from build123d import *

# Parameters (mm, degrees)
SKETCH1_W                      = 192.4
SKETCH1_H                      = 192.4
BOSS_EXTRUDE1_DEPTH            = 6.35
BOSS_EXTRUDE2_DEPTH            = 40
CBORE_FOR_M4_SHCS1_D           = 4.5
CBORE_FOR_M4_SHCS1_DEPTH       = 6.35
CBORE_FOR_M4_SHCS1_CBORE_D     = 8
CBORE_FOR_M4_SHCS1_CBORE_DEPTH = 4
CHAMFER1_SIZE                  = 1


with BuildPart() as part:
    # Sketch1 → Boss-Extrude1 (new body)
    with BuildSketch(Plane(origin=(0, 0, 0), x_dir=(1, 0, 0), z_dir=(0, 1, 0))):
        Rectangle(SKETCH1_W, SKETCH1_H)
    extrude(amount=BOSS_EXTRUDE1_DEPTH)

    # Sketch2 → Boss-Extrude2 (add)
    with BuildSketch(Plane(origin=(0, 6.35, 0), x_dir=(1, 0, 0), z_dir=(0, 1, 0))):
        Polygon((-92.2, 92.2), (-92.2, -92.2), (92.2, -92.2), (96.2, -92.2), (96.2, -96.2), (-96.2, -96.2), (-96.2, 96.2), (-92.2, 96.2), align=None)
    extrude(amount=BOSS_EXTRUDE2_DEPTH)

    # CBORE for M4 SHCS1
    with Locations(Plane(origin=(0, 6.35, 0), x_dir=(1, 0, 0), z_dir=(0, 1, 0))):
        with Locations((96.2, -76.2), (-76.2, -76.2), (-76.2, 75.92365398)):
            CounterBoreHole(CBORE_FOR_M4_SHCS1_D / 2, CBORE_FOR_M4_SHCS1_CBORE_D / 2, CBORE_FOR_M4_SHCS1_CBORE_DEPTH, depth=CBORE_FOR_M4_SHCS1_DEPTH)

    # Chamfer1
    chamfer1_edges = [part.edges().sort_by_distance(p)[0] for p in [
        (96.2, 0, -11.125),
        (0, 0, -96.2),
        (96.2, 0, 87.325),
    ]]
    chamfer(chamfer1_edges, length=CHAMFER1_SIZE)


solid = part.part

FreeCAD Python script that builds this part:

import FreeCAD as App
import Part
import Sketcher
from FreeCAD import Vector
Q = App.Units.Quantity


def edges_at(feature, points):
    """Names of the edges that pass closest to the given points."""
    edges = feature.Shape.Edges
    near = lambda p: min(range(len(edges)), key=lambda i: edges[i].distToShape(Part.Vertex(*p))[0])
    return sorted({f"Edge{near(p) + 1}" for p in points})

doc = App.newDocument("Part")
params = doc.addObject("Spreadsheet::Sheet", "Params")
for row, (alias, value) in enumerate([
    ("sketch1_width", "192.4 mm"),
    ("pad1_length", "6.35 mm"),
    ("sketch2_width", "4 mm"),
    ("sketch2_width2", "192.4 mm"),
    ("pad2_length", "40 mm"),
    ("sketch3_diameter", "4.5 mm"),
    ("hole_diameter", "4.5 mm"),
    ("hole_depth", "6.35 mm"),
    ("hole_cbore_diameter", "8 mm"),
    ("hole_cbore_depth", "4 mm"),
    ("chamfer_size", "1 mm"),
], start=1):
    params.set(f"A{row}", alias)
    params.set(f"B{row}", "=" + value)
    params.setAlias(f"B{row}", alias)

body = doc.addObject("PartDesign::Body", "Body")

sketch1 = body.newObject("Sketcher::SketchObject", "Sketch")
sketch1.AttachmentSupport = (doc.getObject("XZ_Plane"), [""])
sketch1.MapMode = "FlatFace"
sketch1.addGeometry([
    Part.LineSegment(Vector(-96, -96, 0), Vector(-96, 96, 0)),
    Part.LineSegment(Vector(-96, 96, 0), Vector(96, 96, 0)),
    Part.LineSegment(Vector(96, 96, 0), Vector(96, -96, 0)),
    Part.LineSegment(Vector(96, -96, 0), Vector(-96, -96, 0)),
], False)
sketch1.addConstraint([
    Sketcher.Constraint("Coincident", 0, 2, 1, 1),
    Sketcher.Constraint("Coincident", 1, 2, 2, 1),
    Sketcher.Constraint("Coincident", 2, 2, 3, 1),
    Sketcher.Constraint("Coincident", 3, 2, 0, 1),
    Sketcher.Constraint("Vertical", 0),
    Sketcher.Constraint("Horizontal", 1),
    Sketcher.Constraint("Vertical", 2),
    Sketcher.Constraint("Horizontal", 3),
    Sketcher.Constraint("Symmetric", 0, 2, 2, 2, -1, 1),
    Sketcher.Constraint("Equal", 3, 0),
    Sketcher.Constraint("DistanceX", 1, 1, 1, 2, Q("192.4 mm")),
])
sketch1.setExpression("Constraints[10]", "Params.sketch1_width")
pad1 = body.newObject("PartDesign::Pad", "Pad")
pad1.Profile = sketch1
pad1.setExpression("Length", "Params.pad1_length")
pad1.Reversed = True

sketch2 = body.newObject("Sketcher::SketchObject", "Sketch001")
sketch2.AttachmentSupport = (doc.getObject("XZ_Plane"), [""])
sketch2.MapMode = "FlatFace"
sketch2.AttachmentOffset = App.Placement(Vector(0, 0, -6.35), App.Rotation())
sketch2.addGeometry([
    Part.LineSegment(Vector(-92.2, 92.2, 0), Vector(-92.2, -96.2, 0)),
    Part.LineSegment(Vector(-92.2, -96.2, 0), Vector(-96.2, -96.2, 0)),
    Part.LineSegment(Vector(-96.2, -96.2, 0), Vector(-96.2, 96.2, 0)),
    Part.LineSegment(Vector(-96.2, 96.2, 0), Vector(96.2, 96.2, 0)),
    Part.LineSegment(Vector(96.2, 96.2, 0), Vector(96.2, 92.2, 0)),
    Part.LineSegment(Vector(96.2, 92.2, 0), Vector(-92.2, 92.2, 0)),
], False)
sketch2.addConstraint([
    Sketcher.Constraint("Coincident", 0, 2, 1, 1),
    Sketcher.Constraint("Coincident", 1, 2, 2, 1),
    Sketcher.Constraint("Coincident", 2, 2, 3, 1),
    Sketcher.Constraint("Coincident", 3, 2, 4, 1),
    Sketcher.Constraint("Coincident", 4, 2, 5, 1),
    Sketcher.Constraint("Coincident", 5, 2, 0, 1),
    Sketcher.Constraint("Vertical", 0),
    Sketcher.Constraint("Horizontal", 1),
    Sketcher.Constraint("Vertical", 2),
    Sketcher.Constraint("Horizontal", 3),
    Sketcher.Constraint("Vertical", 4),
    Sketcher.Constraint("Horizontal", 5),
    Sketcher.Constraint("Symmetric", 1, 2, 3, 2, -1, 1),
    Sketcher.Constraint("Equal", 5, 0),
    Sketcher.Constraint("Equal", 3, 2),
    Sketcher.Constraint("DistanceX", 1, 2, 1, 1, Q("4 mm")),
    Sketcher.Constraint("DistanceX", 3, 1, 3, 2, Q("192.4 mm")),
])
sketch2.setExpression("Constraints[15]", "Params.sketch2_width")
sketch2.setExpression("Constraints[16]", "Params.sketch2_width2")
pad2 = body.newObject("PartDesign::Pad", "Pad001")
pad2.Profile = sketch2
pad2.setExpression("Length", "Params.pad2_length")
pad2.Reversed = True

sketch3 = body.newObject("Sketcher::SketchObject", "Sketch002")
sketch3.AttachmentSupport = (doc.getObject("XZ_Plane"), [""])
sketch3.MapMode = "FlatFace"
sketch3.AttachmentOffset = App.Placement(Vector(0, 0, -6.35), App.Rotation())
sketch3.addGeometry([
    Part.Circle(Vector(96.2, 76.2, 0), Vector(0, 0, 1), 2.2),
    Part.Circle(Vector(-76.2, 76.2, 0), Vector(0, 0, 1), 2.2),
    Part.Circle(Vector(-76.2, -75.9, 0), Vector(0, 0, 1), 2.2),
], False)
sketch3.addConstraint([
    Sketcher.Constraint("Equal", 0, 1),
    Sketcher.Constraint("Equal", 1, 2),
    Sketcher.Constraint("Horizontal", 0, 3, 1, 3),
    Sketcher.Constraint("Vertical", 1, 3, 2, 3),
    Sketcher.Constraint("Diameter", 0, Q("4.5 mm")),
    Sketcher.Constraint("DistanceX", -1, 1, 0, 3, Q("96.2 mm")),
    Sketcher.Constraint("DistanceY", -1, 1, 0, 3, Q("76.2 mm")),
    Sketcher.Constraint("DistanceX", 1, 3, -1, 1, Q("76.2 mm")),
    Sketcher.Constraint("DistanceY", 2, 3, -1, 1, Q("75.923654 mm")),
])
sketch3.setExpression("Constraints[4]", "Params.sketch3_diameter")
doc.recompute()
hole = body.newObject("PartDesign::Hole", "Hole")
hole.Profile = sketch3
hole.ThreadType = "None"
hole.setExpression("Diameter", "Params.hole_diameter")
hole.DepthType = "Dimension"
hole.setExpression("Depth", "Params.hole_depth")
hole.DrillPoint = "Flat"
hole.HoleCutType = "Counterbore"
hole.setExpression("HoleCutDiameter", "Params.hole_cbore_diameter")
hole.setExpression("HoleCutDepth", "Params.hole_cbore_depth")
hole.Reversed = True
doc.recompute()

chamfer = body.newObject("PartDesign::Chamfer", "Chamfer")
chamfer.Base = (hole, edges_at(hole, [(96.2, 0, -11.125), (0, 0, -96.2), (96.2, 0, 87.325)]))
chamfer.setExpression("Size", "Params.chamfer_size")

doc.recompute()
